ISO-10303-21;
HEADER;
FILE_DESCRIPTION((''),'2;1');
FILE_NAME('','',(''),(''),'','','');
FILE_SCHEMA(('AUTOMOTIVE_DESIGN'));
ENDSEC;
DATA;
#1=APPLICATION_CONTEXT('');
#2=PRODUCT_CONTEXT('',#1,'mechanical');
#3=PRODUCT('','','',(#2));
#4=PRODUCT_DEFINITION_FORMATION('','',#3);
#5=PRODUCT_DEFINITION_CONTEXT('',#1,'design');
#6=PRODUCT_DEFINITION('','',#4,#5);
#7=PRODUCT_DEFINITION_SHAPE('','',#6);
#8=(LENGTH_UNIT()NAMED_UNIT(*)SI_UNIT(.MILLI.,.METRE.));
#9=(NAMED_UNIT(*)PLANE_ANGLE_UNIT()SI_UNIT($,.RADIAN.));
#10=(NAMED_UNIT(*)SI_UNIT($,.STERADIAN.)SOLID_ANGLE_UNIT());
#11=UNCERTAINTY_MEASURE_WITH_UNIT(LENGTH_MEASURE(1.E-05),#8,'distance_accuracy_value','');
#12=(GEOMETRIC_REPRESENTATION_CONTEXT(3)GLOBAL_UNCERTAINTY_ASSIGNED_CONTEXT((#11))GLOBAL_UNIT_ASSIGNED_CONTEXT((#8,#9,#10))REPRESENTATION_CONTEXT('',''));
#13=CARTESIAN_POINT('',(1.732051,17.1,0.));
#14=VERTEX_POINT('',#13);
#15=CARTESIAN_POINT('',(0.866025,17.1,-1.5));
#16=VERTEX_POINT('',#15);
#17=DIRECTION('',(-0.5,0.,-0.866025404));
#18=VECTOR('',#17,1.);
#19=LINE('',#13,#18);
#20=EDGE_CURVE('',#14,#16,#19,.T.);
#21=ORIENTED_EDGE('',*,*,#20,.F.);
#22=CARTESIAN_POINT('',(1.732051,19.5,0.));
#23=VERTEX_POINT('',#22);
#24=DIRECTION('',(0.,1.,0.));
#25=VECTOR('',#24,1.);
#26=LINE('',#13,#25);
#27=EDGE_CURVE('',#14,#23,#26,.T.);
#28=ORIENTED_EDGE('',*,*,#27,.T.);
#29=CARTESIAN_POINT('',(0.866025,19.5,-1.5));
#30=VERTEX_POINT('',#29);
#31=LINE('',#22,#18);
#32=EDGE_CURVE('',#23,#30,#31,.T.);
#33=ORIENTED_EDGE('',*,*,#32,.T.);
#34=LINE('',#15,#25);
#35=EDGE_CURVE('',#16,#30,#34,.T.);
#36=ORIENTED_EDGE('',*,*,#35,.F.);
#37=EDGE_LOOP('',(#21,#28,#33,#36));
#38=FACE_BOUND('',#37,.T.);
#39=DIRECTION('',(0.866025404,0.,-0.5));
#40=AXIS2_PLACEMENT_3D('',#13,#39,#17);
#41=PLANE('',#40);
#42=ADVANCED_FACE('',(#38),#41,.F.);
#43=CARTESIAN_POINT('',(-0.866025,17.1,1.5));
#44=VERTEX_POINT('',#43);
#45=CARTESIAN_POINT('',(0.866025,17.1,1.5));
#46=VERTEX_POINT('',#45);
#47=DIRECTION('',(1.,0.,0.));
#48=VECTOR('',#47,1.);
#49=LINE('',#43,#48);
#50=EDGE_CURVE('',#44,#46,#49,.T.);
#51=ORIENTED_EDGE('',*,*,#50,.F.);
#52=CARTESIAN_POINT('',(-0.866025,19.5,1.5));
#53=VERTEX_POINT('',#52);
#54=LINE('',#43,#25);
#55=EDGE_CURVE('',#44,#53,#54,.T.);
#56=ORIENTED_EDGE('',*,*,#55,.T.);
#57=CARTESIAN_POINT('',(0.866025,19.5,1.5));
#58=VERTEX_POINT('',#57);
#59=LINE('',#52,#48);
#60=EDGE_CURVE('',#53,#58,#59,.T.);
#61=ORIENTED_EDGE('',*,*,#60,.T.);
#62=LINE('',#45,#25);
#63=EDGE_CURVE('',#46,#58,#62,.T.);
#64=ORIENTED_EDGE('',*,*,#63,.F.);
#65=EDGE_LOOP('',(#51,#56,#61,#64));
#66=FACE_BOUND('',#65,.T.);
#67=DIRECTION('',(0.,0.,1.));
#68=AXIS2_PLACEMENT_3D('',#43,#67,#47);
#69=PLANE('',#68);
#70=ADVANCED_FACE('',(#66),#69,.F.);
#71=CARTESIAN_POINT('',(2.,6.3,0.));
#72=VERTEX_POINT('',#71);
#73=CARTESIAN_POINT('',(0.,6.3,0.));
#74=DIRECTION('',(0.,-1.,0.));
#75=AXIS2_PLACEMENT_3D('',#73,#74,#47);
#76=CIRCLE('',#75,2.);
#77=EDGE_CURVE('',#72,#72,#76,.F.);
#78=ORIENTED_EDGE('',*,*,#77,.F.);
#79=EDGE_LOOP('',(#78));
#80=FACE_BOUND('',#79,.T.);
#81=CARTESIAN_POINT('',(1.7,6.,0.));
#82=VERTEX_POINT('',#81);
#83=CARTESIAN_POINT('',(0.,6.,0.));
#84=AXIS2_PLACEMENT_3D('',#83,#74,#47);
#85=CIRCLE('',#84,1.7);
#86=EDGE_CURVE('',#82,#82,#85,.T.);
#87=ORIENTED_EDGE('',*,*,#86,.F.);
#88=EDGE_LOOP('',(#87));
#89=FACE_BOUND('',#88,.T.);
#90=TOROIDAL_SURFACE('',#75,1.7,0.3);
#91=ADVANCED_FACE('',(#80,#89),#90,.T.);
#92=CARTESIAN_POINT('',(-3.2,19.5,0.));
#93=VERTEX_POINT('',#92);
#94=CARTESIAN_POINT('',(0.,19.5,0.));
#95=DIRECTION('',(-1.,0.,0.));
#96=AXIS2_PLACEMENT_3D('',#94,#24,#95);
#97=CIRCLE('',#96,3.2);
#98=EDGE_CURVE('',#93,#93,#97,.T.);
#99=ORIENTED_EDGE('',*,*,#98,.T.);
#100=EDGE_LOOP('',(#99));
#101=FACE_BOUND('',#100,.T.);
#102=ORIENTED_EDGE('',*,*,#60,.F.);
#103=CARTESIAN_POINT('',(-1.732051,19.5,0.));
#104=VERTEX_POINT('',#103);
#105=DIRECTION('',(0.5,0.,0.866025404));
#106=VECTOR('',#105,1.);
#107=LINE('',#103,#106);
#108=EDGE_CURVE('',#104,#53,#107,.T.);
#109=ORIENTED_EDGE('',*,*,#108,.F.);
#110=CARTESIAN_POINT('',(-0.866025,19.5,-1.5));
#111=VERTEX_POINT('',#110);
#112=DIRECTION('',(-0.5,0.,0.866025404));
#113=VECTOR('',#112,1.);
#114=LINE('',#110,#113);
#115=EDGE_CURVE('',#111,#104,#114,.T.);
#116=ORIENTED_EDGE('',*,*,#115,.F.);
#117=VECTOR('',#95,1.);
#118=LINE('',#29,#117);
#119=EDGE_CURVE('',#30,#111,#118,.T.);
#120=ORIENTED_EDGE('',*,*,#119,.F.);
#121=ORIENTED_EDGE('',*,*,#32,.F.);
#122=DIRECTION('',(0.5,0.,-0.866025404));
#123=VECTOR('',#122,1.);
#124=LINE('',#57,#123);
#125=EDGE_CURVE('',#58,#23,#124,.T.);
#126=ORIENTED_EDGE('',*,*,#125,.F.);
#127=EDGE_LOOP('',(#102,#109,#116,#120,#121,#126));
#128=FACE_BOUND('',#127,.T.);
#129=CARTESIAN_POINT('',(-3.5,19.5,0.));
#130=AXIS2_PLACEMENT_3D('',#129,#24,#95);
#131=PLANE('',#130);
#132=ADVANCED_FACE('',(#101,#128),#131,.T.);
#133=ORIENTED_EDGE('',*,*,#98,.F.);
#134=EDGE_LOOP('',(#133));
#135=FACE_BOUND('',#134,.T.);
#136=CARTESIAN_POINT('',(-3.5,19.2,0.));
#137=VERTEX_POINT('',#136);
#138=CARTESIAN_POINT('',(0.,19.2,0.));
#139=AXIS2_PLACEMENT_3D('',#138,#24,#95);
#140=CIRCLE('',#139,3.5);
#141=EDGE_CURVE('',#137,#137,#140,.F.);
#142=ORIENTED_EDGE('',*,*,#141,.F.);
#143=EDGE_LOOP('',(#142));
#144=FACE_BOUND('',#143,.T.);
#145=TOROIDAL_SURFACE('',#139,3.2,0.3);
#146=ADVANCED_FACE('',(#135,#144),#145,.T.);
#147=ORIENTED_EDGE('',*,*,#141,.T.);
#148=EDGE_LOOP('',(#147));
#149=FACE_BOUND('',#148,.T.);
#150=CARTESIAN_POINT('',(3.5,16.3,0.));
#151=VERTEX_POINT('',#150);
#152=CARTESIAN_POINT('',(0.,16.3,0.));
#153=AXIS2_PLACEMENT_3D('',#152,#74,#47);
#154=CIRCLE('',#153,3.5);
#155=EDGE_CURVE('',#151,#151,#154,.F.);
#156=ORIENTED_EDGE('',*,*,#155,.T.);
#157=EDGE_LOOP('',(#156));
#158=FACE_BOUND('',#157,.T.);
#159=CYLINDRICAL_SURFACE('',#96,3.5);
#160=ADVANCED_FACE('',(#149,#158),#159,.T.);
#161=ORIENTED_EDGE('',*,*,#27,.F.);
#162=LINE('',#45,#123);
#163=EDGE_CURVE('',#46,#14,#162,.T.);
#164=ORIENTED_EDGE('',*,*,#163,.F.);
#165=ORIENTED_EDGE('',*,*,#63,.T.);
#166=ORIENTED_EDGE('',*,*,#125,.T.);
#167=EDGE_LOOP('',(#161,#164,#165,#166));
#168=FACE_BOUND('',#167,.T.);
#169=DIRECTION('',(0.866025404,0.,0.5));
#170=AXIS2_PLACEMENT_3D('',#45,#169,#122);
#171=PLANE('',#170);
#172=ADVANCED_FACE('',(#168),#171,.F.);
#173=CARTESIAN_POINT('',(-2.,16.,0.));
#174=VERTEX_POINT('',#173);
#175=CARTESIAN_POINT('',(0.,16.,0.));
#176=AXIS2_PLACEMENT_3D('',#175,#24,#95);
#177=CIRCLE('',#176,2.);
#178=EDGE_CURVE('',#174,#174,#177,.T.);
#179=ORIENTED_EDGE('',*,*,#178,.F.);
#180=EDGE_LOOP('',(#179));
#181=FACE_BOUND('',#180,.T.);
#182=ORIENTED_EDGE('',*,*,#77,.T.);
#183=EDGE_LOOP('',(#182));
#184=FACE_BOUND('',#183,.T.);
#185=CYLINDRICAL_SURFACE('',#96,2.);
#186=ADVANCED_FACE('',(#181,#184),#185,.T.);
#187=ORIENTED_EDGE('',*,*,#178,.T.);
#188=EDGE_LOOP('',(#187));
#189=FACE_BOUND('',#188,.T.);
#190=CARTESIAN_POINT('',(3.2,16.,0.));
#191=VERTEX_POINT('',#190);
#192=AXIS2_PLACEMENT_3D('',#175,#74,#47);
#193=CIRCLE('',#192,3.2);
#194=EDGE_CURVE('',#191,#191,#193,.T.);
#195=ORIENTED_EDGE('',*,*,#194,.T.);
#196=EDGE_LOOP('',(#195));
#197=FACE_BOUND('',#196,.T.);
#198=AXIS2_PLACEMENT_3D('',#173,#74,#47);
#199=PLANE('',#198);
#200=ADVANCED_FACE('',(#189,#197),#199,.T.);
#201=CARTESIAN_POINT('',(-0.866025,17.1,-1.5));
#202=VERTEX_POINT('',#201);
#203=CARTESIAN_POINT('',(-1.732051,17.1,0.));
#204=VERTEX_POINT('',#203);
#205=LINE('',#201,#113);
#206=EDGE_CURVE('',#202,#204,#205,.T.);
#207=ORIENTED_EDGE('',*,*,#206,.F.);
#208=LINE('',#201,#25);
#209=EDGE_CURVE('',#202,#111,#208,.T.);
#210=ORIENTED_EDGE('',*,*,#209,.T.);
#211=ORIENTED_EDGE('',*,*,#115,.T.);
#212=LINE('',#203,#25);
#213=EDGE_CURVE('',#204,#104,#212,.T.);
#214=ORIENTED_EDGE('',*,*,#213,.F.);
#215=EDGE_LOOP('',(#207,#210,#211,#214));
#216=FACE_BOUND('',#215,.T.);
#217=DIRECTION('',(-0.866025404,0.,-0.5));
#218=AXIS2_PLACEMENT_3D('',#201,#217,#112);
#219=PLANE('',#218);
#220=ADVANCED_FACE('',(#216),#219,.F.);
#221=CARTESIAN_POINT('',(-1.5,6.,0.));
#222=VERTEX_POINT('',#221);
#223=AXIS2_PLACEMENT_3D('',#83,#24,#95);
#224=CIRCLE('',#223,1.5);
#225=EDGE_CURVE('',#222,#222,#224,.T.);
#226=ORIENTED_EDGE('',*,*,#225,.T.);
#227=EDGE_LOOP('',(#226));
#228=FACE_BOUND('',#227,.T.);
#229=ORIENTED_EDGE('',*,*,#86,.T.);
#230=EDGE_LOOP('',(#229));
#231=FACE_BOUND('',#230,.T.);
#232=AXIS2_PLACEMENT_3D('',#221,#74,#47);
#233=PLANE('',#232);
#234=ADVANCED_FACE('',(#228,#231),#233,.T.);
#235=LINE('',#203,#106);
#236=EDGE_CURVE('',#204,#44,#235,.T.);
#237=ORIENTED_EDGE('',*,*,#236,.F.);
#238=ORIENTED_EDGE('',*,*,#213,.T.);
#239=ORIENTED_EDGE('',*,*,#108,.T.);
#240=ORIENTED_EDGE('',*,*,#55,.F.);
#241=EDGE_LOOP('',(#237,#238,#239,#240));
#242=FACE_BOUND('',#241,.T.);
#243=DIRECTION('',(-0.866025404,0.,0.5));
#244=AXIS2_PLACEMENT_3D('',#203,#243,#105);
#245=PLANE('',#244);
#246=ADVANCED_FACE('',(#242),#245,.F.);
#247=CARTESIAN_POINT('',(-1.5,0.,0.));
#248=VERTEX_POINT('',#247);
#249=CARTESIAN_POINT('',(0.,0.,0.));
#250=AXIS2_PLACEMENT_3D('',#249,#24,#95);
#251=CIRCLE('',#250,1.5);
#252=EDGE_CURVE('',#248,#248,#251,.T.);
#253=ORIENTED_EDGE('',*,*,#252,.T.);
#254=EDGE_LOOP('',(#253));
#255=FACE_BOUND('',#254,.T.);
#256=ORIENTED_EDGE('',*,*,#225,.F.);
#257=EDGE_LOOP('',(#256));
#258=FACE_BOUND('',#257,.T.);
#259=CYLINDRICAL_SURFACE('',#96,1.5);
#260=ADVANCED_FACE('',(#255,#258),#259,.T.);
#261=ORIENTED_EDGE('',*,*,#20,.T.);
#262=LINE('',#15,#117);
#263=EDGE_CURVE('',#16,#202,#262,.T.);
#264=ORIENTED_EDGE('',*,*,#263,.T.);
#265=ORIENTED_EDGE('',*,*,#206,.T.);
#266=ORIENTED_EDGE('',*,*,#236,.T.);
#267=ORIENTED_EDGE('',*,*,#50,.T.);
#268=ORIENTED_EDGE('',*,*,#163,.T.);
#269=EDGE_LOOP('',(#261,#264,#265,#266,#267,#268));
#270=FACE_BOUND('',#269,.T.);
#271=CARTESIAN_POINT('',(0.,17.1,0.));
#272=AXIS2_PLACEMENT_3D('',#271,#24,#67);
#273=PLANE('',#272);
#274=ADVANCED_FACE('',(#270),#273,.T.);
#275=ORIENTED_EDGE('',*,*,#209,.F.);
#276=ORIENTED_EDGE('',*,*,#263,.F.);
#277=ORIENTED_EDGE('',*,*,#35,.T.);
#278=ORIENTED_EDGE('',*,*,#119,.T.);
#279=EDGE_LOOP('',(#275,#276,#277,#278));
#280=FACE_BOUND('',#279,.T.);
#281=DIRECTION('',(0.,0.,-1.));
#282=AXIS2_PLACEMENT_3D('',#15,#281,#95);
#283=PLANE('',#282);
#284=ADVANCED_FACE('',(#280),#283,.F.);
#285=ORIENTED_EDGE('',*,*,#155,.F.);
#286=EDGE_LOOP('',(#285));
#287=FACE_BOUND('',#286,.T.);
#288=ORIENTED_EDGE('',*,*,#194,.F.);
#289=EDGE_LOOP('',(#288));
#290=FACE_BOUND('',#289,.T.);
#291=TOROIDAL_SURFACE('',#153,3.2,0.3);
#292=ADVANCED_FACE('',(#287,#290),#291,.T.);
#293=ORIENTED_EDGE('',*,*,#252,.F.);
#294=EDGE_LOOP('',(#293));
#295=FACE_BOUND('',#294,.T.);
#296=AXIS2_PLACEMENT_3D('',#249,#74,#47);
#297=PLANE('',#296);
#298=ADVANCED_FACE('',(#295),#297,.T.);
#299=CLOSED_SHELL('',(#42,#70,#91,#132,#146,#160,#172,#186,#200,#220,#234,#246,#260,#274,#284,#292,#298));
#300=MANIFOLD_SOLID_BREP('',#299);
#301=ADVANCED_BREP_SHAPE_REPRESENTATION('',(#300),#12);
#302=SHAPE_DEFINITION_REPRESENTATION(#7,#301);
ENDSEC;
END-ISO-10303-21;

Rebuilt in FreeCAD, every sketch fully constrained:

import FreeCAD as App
import Part
import Sketcher

V = App.Vector
Q = App.Units.Quantity


def edges_at(feature, points):
    """Names of the edges that pass closest to the given points."""
    edges = feature.Shape.Edges
    near = lambda p: min(range(len(edges)), key=lambda i: edges[i].distToShape(Part.Vertex(*p))[0])
    return sorted({f"Edge{near(p) + 1}" for p in points})

doc = App.newDocument("Part")
params = doc.addObject("Spreadsheet::Sheet", "Params")
for row, (alias, value) in enumerate([
    ("sketch1_height", "10 mm"),
    ("sketch1_height2", "6 mm"),
    ("sketch1_width", "1.5 mm"),
    ("sketch1_width2", "3.5 mm"),
    ("revolution_angle", "360 deg"),
    ("fillet_radius", "0.3 mm"),
    ("pocket1_length", "2.4 mm"),
], start=1):
    params.set(f"A{row}", alias)
    params.set(f"B{row}", "=" + value)
    params.setAlias(f"B{row}", alias)

body = doc.addObject("PartDesign::Body", "Body")

sketch1 = body.newObject("Sketcher::SketchObject", "Sketch")
sketch1.AttachmentSupport = (doc.getObject("XY_Plane"), [""])
sketch1.MapMode = "FlatFace"
sketch1.addGeometry(Part.LineSegment(V(-1.5, 0, 0), V(0, 0, 0)), False)
sketch1.addGeometry(Part.LineSegment(V(0, 0, 0), V(0, 19.5, 0)), False)
sketch1.addGeometry(Part.LineSegment(V(0, 19.5, 0), V(-3.5, 19.5, 0)), False)
sketch1.addGeometry(Part.LineSegment(V(-3.5, 19.5, 0), V(-3.5, 16, 0)), False)
sketch1.addGeometry(Part.LineSegment(V(-3.5, 16, 0), V(-2, 16, 0)), False)
sketch1.addGeometry(Part.LineSegment(V(-2, 16, 0), V(-2, 6, 0)), False)
sketch1.addGeometry(Part.LineSegment(V(-2, 6, 0), V(-1.5, 6, 0)), False)
sketch1.addGeometry(Part.LineSegment(V(-1.5, 6, 0), V(-1.5, 0, 0)), False)
sketch1.addConstraint(Sketcher.Constraint("Coincident", 0, 2, 1, 1))
sketch1.addConstraint(Sketcher.Constraint("Coincident", 1, 2, 2, 1))
sketch1.addConstraint(Sketcher.Constraint("Coincident", 2, 2, 3, 1))
sketch1.addConstraint(Sketcher.Constraint("Coincident", 3, 2, 4, 1))
sketch1.addConstraint(Sketcher.Constraint("Coincident", 4, 2, 5, 1))
sketch1.addConstraint(Sketcher.Constraint("Coincident", 5, 2, 6, 1))
sketch1.addConstraint(Sketcher.Constraint("Coincident", 6, 2, 7, 1))
sketch1.addConstraint(Sketcher.Constraint("Coincident", 7, 2, 0, 1))
sketch1.addConstraint(Sketcher.Constraint("Horizontal", 0))
sketch1.addConstraint(Sketcher.Constraint("Vertical", 1))
sketch1.addConstraint(Sketcher.Constraint("Horizontal", 2))
sketch1.addConstraint(Sketcher.Constraint("Vertical", 3))
sketch1.addConstraint(Sketcher.Constraint("Horizontal", 4))
sketch1.addConstraint(Sketcher.Constraint("Vertical", 5))
sketch1.addConstraint(Sketcher.Constraint("Horizontal", 6))
sketch1.addConstraint(Sketcher.Constraint("Vertical", 7))
sketch1.addConstraint(Sketcher.Constraint("Coincident", 0, 2, -1, 1))
sketch1.addConstraint(Sketcher.Constraint("Equal", 0, 4))
sketch1.addConstraint(Sketcher.Constraint("Equal", 2, 3))
sketch1.addConstraint(Sketcher.Constraint("DistanceY", 5, 2, 5, 1, 10.0))
sketch1.addConstraint(Sketcher.Constraint("DistanceY", 7, 2, 7, 1, 6.0))
sketch1.addConstraint(Sketcher.Constraint("DistanceX", 0, 1, 0, 2, 1.5))
sketch1.addConstraint(Sketcher.Constraint("DistanceX", 2, 2, 2, 1, 3.5))
sketch1.setExpression("Constraints[19]", "Params.sketch1_height")
sketch1.setExpression("Constraints[20]", "Params.sketch1_height2")
sketch1.setExpression("Constraints[21]", "Params.sketch1_width")
sketch1.setExpression("Constraints[22]", "Params.sketch1_width2")
revolution = body.newObject("PartDesign::Revolution", "Revolution")
revolution.Profile = sketch1
revolution.ReferenceAxis = (sketch1, ["V_Axis"])
revolution.setExpression("Angle", "Params.revolution_angle")
doc.recompute()

fillet = body.newObject("PartDesign::Fillet", "Fillet")
fillet.Base = (revolution, edges_at(revolution, [(3.5, 19.5, 0), (3.5, 16, 0), (2, 6, 0)]))
fillet.setExpression("Radius", "Params.fillet_radius")

sketch2 = body.newObject("Sketcher::SketchObject", "Sketch001")
sketch2.AttachmentSupport = (doc.getObject("XZ_Plane"), [""])
sketch2.MapMode = "FlatFace"
sketch2.AttachmentOffset = App.Placement(V(0, 0, -19.5), App.Rotation())
sketch2.addGeometry(Part.LineSegment(V(0.9, 1.5, 0), V(1.7, 0, 0)), False)
sketch2.addGeometry(Part.LineSegment(V(1.7, 0, 0), V(0.9, -1.5, 0)), False)
sketch2.addGeometry(Part.LineSegment(V(0.9, -1.5, 0), V(-0.9, -1.5, 0)), False)
sketch2.addGeometry(Part.LineSegment(V(-0.9, -1.5, 0), V(-1.7, 0, 0)), False)
sketch2.addGeometry(Part.LineSegment(V(-1.7, 0, 0), V(-0.9, 1.5, 0)), False)
sketch2.addGeometry(Part.LineSegment(V(-0.9, 1.5, 0), V(0.9, 1.5, 0)), False)
sketch2.addConstraint(Sketcher.Constraint("Coincident", 0, 2, 1, 1))
sketch2.addConstraint(Sketcher.Constraint("Coincident", 1, 2, 2, 1))
sketch2.addConstraint(Sketcher.Constraint("Coincident", 2, 2, 3, 1))
sketch2.addConstraint(Sketcher.Constraint("Coincident", 3, 2, 4, 1))
sketch2.addConstraint(Sketcher.Constraint("Coincident", 4, 2, 5, 1))
sketch2.addConstraint(Sketcher.Constraint("Coincident", 5, 2, 0, 1))
sketch2.addConstraint(Sketcher.Constraint("Horizontal", 2))
sketch2.addConstraint(Sketcher.Constraint("Horizontal", 5))
sketch2.addConstraint(Sketcher.Constraint("Symmetric", 0, 2, 3, 2, -1, 1))
sketch2.addConstraint(Sketcher.Constraint("Symmetric", 1, 2, 4, 2, -1, 1))
sketch2.addConstraint(Sketcher.Constraint("PointOnObject", 0, 2, -1))
sketch2.addConstraint(Sketcher.Constraint("Parallel", 0, 3))
sketch2.addConstraint(Sketcher.Constraint("Vertical", 2, 2, 4, 2))
sketch2.addConstraint(Sketcher.Constraint("Angle", 0, Q("-60 deg")))
sketch2.addConstraint(Sketcher.Constraint("DistanceY", 2, 2, 4, 2, 3.0))
sketch2.addConstraint(Sketcher.Constraint("DistanceX", 2, 2, 2, 1, 1.732051))
pocket1 = body.newObject("PartDesign::Pocket", "Pocket")
pocket1.Profile = sketch2
pocket1.setExpression("Length", "Params.pocket1_length")
pocket1.Reversed = True

doc.recompute()
